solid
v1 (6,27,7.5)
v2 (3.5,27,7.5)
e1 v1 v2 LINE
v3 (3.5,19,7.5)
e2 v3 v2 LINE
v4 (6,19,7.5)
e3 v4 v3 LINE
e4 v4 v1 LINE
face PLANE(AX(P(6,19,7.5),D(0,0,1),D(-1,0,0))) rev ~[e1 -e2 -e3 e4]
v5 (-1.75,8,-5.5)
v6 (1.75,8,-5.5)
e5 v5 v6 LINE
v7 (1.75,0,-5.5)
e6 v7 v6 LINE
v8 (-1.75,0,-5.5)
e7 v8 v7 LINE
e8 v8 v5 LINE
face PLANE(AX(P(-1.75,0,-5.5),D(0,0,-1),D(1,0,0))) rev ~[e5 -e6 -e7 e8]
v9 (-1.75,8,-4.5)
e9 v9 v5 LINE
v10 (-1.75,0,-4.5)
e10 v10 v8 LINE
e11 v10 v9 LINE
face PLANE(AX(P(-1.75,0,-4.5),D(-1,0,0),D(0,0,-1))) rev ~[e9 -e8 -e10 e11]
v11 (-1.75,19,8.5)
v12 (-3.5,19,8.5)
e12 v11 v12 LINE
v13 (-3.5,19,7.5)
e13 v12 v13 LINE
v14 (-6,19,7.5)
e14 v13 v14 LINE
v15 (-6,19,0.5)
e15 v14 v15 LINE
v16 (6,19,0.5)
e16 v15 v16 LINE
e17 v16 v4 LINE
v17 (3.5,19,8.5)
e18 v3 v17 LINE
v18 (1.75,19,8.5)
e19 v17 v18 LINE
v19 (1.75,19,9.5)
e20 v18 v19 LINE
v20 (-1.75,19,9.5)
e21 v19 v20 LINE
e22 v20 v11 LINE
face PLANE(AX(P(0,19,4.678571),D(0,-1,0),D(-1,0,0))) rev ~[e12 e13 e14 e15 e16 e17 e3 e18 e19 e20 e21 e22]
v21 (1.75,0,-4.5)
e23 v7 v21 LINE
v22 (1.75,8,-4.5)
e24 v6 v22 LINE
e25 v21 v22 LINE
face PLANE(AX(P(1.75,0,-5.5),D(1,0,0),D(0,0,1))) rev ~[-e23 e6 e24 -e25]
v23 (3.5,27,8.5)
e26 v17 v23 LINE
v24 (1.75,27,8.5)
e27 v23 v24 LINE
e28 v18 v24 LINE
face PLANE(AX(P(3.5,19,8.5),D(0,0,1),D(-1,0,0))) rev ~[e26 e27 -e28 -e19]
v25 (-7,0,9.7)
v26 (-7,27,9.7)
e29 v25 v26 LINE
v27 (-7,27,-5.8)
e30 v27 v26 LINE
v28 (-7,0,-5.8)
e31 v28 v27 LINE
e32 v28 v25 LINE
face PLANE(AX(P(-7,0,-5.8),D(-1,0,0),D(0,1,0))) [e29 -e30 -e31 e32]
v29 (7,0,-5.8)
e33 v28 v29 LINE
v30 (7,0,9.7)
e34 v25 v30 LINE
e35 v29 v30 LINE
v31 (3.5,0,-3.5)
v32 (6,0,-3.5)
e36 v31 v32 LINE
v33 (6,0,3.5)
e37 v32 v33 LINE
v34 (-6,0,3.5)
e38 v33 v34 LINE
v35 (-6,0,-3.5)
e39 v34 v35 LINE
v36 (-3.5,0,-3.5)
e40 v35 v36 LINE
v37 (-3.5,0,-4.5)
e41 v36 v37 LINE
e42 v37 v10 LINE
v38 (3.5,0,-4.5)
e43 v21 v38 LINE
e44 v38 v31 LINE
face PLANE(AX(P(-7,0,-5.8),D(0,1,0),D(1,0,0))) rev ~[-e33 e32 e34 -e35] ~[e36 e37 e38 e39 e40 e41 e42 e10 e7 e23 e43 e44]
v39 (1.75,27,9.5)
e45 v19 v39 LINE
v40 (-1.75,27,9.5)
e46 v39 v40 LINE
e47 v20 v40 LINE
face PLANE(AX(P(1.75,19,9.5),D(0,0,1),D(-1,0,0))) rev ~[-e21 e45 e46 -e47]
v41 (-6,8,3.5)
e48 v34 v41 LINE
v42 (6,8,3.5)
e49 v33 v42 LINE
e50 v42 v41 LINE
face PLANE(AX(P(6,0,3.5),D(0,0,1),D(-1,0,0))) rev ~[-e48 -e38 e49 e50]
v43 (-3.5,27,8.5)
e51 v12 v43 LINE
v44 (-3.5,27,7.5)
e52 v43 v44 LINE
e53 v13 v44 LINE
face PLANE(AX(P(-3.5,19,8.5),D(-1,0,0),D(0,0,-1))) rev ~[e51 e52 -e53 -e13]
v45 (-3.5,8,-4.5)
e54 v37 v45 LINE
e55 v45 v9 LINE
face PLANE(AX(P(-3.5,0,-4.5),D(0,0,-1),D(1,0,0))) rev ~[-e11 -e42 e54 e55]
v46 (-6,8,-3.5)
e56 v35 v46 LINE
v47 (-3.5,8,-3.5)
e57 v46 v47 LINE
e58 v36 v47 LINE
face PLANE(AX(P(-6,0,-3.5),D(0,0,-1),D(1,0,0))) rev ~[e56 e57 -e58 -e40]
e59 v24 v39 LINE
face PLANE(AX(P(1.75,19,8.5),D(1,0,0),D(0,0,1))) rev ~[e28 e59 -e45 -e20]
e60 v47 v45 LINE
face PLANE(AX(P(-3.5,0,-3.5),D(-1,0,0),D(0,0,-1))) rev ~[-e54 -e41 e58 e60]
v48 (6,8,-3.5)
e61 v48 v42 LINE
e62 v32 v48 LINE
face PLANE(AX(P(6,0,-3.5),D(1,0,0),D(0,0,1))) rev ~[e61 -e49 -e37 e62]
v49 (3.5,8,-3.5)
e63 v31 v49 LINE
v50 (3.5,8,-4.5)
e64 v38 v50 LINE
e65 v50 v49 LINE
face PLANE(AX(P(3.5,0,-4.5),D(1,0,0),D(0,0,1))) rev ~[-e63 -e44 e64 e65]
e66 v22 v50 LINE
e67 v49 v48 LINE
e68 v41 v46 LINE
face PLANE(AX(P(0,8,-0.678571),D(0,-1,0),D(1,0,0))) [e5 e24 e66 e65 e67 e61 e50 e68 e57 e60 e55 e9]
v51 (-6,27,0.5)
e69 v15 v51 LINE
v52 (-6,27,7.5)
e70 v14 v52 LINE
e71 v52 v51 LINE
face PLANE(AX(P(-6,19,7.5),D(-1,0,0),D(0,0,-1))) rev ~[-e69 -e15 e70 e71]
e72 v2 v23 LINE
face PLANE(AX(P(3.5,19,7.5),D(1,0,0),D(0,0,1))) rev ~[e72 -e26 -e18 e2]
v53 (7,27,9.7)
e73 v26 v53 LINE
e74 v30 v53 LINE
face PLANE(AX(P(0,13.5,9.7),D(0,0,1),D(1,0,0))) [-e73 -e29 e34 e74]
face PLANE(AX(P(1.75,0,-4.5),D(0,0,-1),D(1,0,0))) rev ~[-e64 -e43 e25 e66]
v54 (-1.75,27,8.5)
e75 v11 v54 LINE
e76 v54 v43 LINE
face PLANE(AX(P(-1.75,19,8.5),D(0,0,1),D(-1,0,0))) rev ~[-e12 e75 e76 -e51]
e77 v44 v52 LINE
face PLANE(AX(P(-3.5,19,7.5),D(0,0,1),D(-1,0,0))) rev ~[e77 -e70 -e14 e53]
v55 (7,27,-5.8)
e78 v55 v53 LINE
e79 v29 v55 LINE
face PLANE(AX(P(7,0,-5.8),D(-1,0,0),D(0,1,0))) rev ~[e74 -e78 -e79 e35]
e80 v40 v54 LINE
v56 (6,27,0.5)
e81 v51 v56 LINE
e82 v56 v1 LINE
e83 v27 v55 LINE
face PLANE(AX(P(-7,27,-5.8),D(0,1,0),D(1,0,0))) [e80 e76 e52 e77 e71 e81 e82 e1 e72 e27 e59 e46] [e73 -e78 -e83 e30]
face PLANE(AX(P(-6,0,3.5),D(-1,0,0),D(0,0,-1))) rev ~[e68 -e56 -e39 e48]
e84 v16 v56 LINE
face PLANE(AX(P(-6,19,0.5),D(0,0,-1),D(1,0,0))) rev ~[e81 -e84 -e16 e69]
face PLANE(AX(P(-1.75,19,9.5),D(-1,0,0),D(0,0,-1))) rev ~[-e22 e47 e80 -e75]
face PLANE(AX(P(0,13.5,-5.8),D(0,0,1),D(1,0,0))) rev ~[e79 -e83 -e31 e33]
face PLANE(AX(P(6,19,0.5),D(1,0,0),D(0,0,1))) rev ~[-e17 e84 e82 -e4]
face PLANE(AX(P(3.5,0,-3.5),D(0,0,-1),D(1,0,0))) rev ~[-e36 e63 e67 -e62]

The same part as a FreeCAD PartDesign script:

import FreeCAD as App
import Part
import Sketcher


def add_polygon(sketch, points):
    """Adds a closed chain of lines whose ends are joined by coincident constraints."""
    first, n = sketch.GeometryCount, len(points)
    for a, b in zip(points, points[1:] + points[:1]):
        sketch.addGeometry(Part.LineSegment(App.Vector(*a, 0), App.Vector(*b, 0)), False)
    for i in range(n):
        sketch.addConstraint(Sketcher.Constraint("Coincident", first + i, 2, first + (i + 1) % n, 1))

doc = App.newDocument("Part")
body = doc.addObject("PartDesign::Body", "Body")

# Sketch on XZ plane
sketch1 = doc.addObject("Sketcher::SketchObject", "Sketch")
body.addObject(sketch1)
sketch1.AttachmentSupport = (doc.XZ_Plane, [""])
sketch1.MapMode = "FlatFace"
sketch1.AttachmentOffset = App.Placement(App.Vector(0, 0, -19), App.Rotation())
add_polygon(sketch1, [(6, 0.5), (-6, 0.5), (-6, 7.5), (-3.5, 7.5), (-3.5, 8.5), (-1.8, 8.5), (-1.8, 9.5), (1.8, 9.5), (1.8, 8.5), (3.5, 8.5), (3.5, 7.5), (6, 7.5)])  # lines 0-11
sketch1.addConstraint(Sketcher.Constraint("Horizontal", 0))
sketch1.addConstraint(Sketcher.Constraint("Vertical", 1))
sketch1.addConstraint(Sketcher.Constraint("Horizontal", 2))
sketch1.addConstraint(Sketcher.Constraint("Vertical", 3))
sketch1.addConstraint(Sketcher.Constraint("Horizontal", 4))
sketch1.addConstraint(Sketcher.Constraint("Vertical", 5))
sketch1.addConstraint(Sketcher.Constraint("Horizontal", 6))
sketch1.addConstraint(Sketcher.Constraint("Vertical", 7))
sketch1.addConstraint(Sketcher.Constraint("Horizontal", 8))
sketch1.addConstraint(Sketcher.Constraint("Vertical", 9))
sketch1.addConstraint(Sketcher.Constraint("Horizontal", 10))
sketch1.addConstraint(Sketcher.Constraint("Vertical", 11))
sketch1.addConstraint(Sketcher.Constraint("Symmetric", 4, 2, 7, 2, -2))
sketch1.addConstraint(Sketcher.Constraint("Symmetric", 2, 2, 9, 2, -2))
sketch1.addConstraint(Sketcher.Constraint("Equal", 2, 10))
sketch1.addConstraint(Sketcher.Constraint("Equal", 3, 5))
sketch1.addConstraint(Sketcher.Constraint("DistanceX", 0, 2, 0, 1, 12.0))
sketch1.addConstraint(Sketcher.Constraint("DistanceY", 1, 1, 1, 2, 7.0))
sketch1.addConstraint(Sketcher.Constraint("DistanceY", 3, 1, 3, 2, 1.0))
sketch1.addConstraint(Sketcher.Constraint("DistanceX", 2, 1, 2, 2, 2.5))
sketch1.addConstraint(Sketcher.Constraint("DistanceX", 6, 1, 6, 2, 3.5))
sketch1.addConstraint(Sketcher.Constraint("DistanceY", -1, 1, 0, 2, 0.5))
pad1 = doc.addObject("PartDesign::Pad", "Pad")
body.addObject(pad1)
pad1.Profile = sketch1
pad1.Length = 8
pad1.Reversed = True
body2 = doc.addObject("PartDesign::Body", "Body001")

# Sketch on XZ plane
sketch2 = doc.addObject("Sketcher::SketchObject", "Sketch001")
body2.addObject(sketch2)
sketch2.AttachmentSupport = (doc.getObject("XZ_Plane001"), [""])
sketch2.MapMode = "FlatFace"
add_polygon(sketch2, [(-6, 3.5), (6, 3.5), (6, -3.5), (3.5, -3.5), (3.5, -4.5), (1.8, -4.5), (1.8, -5.5), (-1.8, -5.5), (-1.8, -4.5), (-3.5, -4.5), (-3.5, -3.5), (-6, -3.5)])  # lines 0-11
sketch2.addConstraint(Sketcher.Constraint("Horizontal", 0))
sketch2.addConstraint(Sketcher.Constraint("Vertical", 1))
sketch2.addConstraint(Sketcher.Constraint("Horizontal", 2))
sketch2.addConstraint(Sketcher.Constraint("Vertical", 3))
sketch2.addConstraint(Sketcher.Constraint("Horizontal", 4))
sketch2.addConstraint(Sketcher.Constraint("Vertical", 5))
sketch2.addConstraint(Sketcher.Constraint("Horizontal", 6))
sketch2.addConstraint(Sketcher.Constraint("Vertical", 7))
sketch2.addConstraint(Sketcher.Constraint("Horizontal", 8))
sketch2.addConstraint(Sketcher.Constraint("Vertical", 9))
sketch2.addConstraint(Sketcher.Constraint("Horizontal", 10))
sketch2.addConstraint(Sketcher.Constraint("Vertical", 11))
sketch2.addConstraint(Sketcher.Constraint("Symmetric", 0, 2, 10, 2, -1, 1))
sketch2.addConstraint(Sketcher.Constraint("Symmetric", 4, 2, 7, 2, -2))
sketch2.addConstraint(Sketcher.Constraint("Symmetric", 2, 2, 9, 2, -2))
sketch2.addConstraint(Sketcher.Constraint("Equal", 3, 5))
sketch2.addConstraint(Sketcher.Constraint("DistanceX", 0, 1, 0, 2, 12.0))
sketch2.addConstraint(Sketcher.Constraint("DistanceY", 1, 2, 1, 1, 7.0))
sketch2.addConstraint(Sketcher.Constraint("DistanceY", 3, 2, 3, 1, 1.0))
sketch2.addConstraint(Sketcher.Constraint("DistanceX", 2, 2, 2, 1, 2.5))
sketch2.addConstraint(Sketcher.Constraint("DistanceX", 6, 2, 6, 1, 3.5))
pad2 = doc.addObject("PartDesign::Pad", "Pad001")
body2.addObject(pad2)
pad2.Profile = sketch2
pad2.Length = 8
pad2.Reversed = True
body3 = doc.addObject("PartDesign::Body", "Body002")

# Sketch on XY plane
sketch3 = doc.addObject("Sketcher::SketchObject", "Sketch002")
body3.addObject(sketch3)
sketch3.AttachmentSupport = (doc.getObject("XY_Plane002"), [""])
sketch3.MapMode = "FlatFace"
sketch3.AttachmentOffset = App.Placement(App.Vector(0, 0, -5.8), App.Rotation())
add_polygon(sketch3, [(-7, 27), (-7, 0), (7, 0), (7, 27)])  # lines 0-3
sketch3.addConstraint(Sketcher.Constraint("Vertical", 0))
sketch3.addConstraint(Sketcher.Constraint("Horizontal", 1))
sketch3.addConstraint(Sketcher.Constraint("Vertical", 2))
sketch3.addConstraint(Sketcher.Constraint("Horizontal", 3))
sketch3.addConstraint(Sketcher.Constraint("Symmetric", 0, 2, 1, 2, -1, 1))
sketch3.addConstraint(Sketcher.Constraint("DistanceX", 1, 1, 1, 2, 14.0))
sketch3.addConstraint(Sketcher.Constraint("DistanceY", 0, 2, 0, 1, 27.0))
pad3 = doc.addObject("PartDesign::Pad", "Pad002")
body3.addObject(pad3)
pad3.Profile = sketch3
pad3.Length = 15.5
doc.recompute()

boolean = doc.addObject("PartDesign::Boolean", "Boolean")
body3.addObject(boolean)
boolean.Type = "Cut"
boolean.addObjects([body2])
doc.recompute()

boolean2 = doc.addObject("PartDesign::Boolean", "Boolean001")
body3.addObject(boolean2)
boolean2.Type = "Cut"
boolean2.addObjects([body])

doc.recompute()
